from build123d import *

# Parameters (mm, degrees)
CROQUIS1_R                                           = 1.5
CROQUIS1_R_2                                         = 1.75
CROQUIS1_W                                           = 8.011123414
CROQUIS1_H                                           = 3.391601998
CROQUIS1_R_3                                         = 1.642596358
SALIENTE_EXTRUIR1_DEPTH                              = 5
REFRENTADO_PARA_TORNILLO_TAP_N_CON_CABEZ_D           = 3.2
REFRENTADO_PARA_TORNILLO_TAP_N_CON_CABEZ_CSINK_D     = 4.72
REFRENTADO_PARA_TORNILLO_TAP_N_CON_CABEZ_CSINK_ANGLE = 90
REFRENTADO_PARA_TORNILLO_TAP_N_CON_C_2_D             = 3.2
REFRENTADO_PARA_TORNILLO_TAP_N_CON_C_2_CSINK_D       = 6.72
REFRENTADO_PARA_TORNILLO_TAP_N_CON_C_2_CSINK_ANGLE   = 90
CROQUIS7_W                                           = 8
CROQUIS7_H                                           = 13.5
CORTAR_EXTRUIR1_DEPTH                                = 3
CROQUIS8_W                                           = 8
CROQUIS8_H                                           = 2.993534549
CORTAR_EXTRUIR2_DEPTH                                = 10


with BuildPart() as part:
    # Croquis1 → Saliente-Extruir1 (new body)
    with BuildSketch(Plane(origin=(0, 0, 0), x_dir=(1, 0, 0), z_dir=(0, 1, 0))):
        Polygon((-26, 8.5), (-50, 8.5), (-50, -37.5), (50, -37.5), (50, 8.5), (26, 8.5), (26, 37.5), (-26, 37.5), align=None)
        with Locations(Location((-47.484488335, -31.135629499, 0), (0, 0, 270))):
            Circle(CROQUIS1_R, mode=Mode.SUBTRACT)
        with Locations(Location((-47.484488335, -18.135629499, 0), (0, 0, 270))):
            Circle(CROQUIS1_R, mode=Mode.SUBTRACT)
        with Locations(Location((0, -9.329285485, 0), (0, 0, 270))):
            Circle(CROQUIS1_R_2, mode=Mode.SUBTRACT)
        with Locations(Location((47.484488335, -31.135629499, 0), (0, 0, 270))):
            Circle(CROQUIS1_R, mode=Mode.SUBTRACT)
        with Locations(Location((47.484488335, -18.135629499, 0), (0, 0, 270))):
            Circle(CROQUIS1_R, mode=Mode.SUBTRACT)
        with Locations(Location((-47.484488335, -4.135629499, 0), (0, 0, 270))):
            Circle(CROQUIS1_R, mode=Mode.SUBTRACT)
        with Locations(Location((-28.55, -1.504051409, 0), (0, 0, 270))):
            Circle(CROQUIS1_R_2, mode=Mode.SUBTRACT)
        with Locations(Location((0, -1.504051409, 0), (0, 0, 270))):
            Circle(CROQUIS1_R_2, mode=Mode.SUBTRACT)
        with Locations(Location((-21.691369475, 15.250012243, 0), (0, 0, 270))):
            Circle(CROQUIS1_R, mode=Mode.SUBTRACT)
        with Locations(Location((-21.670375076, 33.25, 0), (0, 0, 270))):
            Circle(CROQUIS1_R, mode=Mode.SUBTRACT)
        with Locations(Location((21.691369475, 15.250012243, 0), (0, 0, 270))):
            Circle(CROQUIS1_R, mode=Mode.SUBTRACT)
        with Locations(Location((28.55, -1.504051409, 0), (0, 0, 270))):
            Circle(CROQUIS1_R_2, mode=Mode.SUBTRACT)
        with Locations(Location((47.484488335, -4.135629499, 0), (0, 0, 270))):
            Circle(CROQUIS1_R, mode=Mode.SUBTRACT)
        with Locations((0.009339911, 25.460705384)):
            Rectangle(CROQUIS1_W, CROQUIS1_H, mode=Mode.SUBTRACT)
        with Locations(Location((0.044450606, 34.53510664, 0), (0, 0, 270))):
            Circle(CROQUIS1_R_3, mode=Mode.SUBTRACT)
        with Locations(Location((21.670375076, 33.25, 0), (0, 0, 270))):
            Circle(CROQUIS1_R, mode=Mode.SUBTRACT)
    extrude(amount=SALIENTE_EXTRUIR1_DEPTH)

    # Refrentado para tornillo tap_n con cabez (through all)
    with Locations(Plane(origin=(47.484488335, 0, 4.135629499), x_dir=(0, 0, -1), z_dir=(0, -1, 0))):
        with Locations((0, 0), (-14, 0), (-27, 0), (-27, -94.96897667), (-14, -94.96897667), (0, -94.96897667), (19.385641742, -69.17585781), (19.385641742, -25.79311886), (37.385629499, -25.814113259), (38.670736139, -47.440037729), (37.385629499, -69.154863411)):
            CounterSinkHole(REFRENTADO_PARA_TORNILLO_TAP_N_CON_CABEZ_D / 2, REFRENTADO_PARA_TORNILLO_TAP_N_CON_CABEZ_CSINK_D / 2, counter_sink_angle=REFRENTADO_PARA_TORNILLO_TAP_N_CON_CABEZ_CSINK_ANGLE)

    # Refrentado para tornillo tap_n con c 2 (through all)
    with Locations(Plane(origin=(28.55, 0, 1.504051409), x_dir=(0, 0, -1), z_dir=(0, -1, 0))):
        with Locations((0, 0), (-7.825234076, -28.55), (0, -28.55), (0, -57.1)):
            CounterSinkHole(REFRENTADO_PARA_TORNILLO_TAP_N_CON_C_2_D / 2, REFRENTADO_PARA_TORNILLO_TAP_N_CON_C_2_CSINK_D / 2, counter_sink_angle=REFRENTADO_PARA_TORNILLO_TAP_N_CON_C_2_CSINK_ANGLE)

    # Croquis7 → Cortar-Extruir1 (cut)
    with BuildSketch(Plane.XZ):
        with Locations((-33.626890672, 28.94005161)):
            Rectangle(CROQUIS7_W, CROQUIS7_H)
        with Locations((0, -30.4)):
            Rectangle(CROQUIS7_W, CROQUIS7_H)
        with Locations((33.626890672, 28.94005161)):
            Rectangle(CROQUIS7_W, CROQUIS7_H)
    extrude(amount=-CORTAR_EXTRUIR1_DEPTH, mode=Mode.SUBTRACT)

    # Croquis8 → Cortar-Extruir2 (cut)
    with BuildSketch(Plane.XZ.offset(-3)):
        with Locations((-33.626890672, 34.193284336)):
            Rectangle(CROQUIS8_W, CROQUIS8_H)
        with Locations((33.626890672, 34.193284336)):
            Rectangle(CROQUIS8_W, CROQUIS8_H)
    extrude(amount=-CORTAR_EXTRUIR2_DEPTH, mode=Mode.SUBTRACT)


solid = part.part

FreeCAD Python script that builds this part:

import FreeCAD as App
import Part
import Sketcher

V = App.Vector


def add_polygon(sketch, points):
    """Adds a closed chain of lines whose ends are joined by coincident constraints."""
    first, n = sketch.GeometryCount, len(points)
    for a, b in zip(points, points[1:] + points[:1]):
        sketch.addGeometry(Part.LineSegment(App.Vector(*a, 0), App.Vector(*b, 0)), False)
    for i in range(n):
        sketch.addConstraint(Sketcher.Constraint("Coincident", first + i, 2, first + (i + 1) % n, 1))

doc = App.newDocument("Part")
body = doc.addObject("PartDesign::Body", "Body")

sketch1 = body.newObject("Sketcher::SketchObject", "Sketch")
sketch1.AttachmentSupport = (doc.getObject("XZ_Plane"), [""])
sketch1.MapMode = "FlatFace"
add_polygon(sketch1, [(-26, -8.5), (-50, -8.5), (-50, 37.5), (50, 37.5), (50, -8.5), (26, -8.5), (26, -37.5), (-26, -37.5)])
sketch1.addGeometry(Part.Circle(V(-47.484488, 31.135629, 0), V(0, 0, 1), 1.5), False)
sketch1.addGeometry(Part.Circle(V(-47.484488, 18.135629, 0), V(0, 0, 1), 1.5), False)
sketch1.addGeometry(Part.Circle(V(-47.484488, 4.135629, 0), V(0, 0, 1), 1.5), False)
sketch1.addGeometry(Part.Circle(V(-28.55, 1.504051, 0), V(0, 0, 1), 1.75), False)
sketch1.addGeometry(Part.Circle(V(47.484488, 31.135629, 0), V(0, 0, 1), 1.5), False)
sketch1.addGeometry(Part.Circle(V(47.484488, 18.135629, 0), V(0, 0, 1), 1.5), False)
sketch1.addGeometry(Part.Circle(V(0, 9.329285, 0), V(0, 0, 1), 1.75), False)
sketch1.addGeometry(Part.Circle(V(0, 1.504051, 0), V(0, 0, 1), 1.75), False)
sketch1.addGeometry(Part.Circle(V(28.55, 1.504051, 0), V(0, 0, 1), 1.75), False)
sketch1.addGeometry(Part.Circle(V(47.484488, 4.135629, 0), V(0, 0, 1), 1.5), False)
sketch1.addGeometry(Part.Circle(V(-21.691369, -15.250012, 0), V(0, 0, 1), 1.5), False)
sketch1.addGeometry(Part.Circle(V(-21.670375, -33.25, 0), V(0, 0, 1), 1.5), False)
sketch1.addGeometry(Part.Circle(V(21.691369, -15.250012, 0), V(0, 0, 1), 1.5), False)
add_polygon(sketch1, [(4.014902, -23.764904), (-3.996222, -23.764904), (-3.996222, -27.156506), (4.014902, -27.156506)])
sketch1.addGeometry(Part.Circle(V(0.044451, -34.535107, 0), V(0, 0, 1), 1.642596), False)
sketch1.addGeometry(Part.Circle(V(21.670375, -33.25, 0), V(0, 0, 1), 1.5), False)
sketch1.addConstraint(Sketcher.Constraint("Horizontal", 0))
sketch1.addConstraint(Sketcher.Constraint("Vertical", 1))
sketch1.addConstraint(Sketcher.Constraint("Horizontal", 2))
sketch1.addConstraint(Sketcher.Constraint("Vertical", 3))
sketch1.addConstraint(Sketcher.Constraint("Horizontal", 4))
sketch1.addConstraint(Sketcher.Constraint("Vertical", 5))
sketch1.addConstraint(Sketcher.Constraint("Horizontal", 6))
sketch1.addConstraint(Sketcher.Constraint("Vertical", 7))
sketch1.addConstraint(Sketcher.Constraint("Horizontal", 21))
sketch1.addConstraint(Sketcher.Constraint("Vertical", 22))
sketch1.addConstraint(Sketcher.Constraint("Horizontal", 23))
sketch1.addConstraint(Sketcher.Constraint("Vertical", 24))
sketch1.addConstraint(Sketcher.Constraint("Equal", 8, 9))
sketch1.addConstraint(Sketcher.Constraint("Equal", 9, 10))
sketch1.addConstraint(Sketcher.Constraint("Equal", 10, 12))
sketch1.addConstraint(Sketcher.Constraint("Equal", 12, 13))
sketch1.addConstraint(Sketcher.Constraint("Equal", 11, 14))
sketch1.addConstraint(Sketcher.Constraint("Equal", 14, 15))
sketch1.addConstraint(Sketcher.Constraint("Equal", 15, 16))
sketch1.addConstraint(Sketcher.Constraint("Equal", 13, 17))
sketch1.addConstraint(Sketcher.Constraint("Equal", 17, 18))
sketch1.addConstraint(Sketcher.Constraint("Equal", 18, 19))
sketch1.addConstraint(Sketcher.Constraint("Equal", 19, 20))
sketch1.addConstraint(Sketcher.Constraint("Equal", 20, 26))
sketch1.addConstraint(Sketcher.Constraint("Symmetric", 8, 3, 12, 3, -2))
sketch1.addConstraint(Sketcher.Constraint("Symmetric", 9, 3, 13, 3, -2))
sketch1.addConstraint(Sketcher.Constraint("Symmetric", 11, 3, 16, 3, -2))
sketch1.addConstraint(Sketcher.Constraint("Symmetric", 10, 3, 17, 3, -2))
sketch1.addConstraint(Sketcher.Constraint("Symmetric", 18, 3, 20, 3, -2))
sketch1.addConstraint(Sketcher.Constraint("Symmetric", 19, 3, 26, 3, -2))
sketch1.addConstraint(Sketcher.Constraint("Symmetric", 0, 2, 3, 2, -2))
sketch1.addConstraint(Sketcher.Constraint("PointOnObject", 14, 3, -2))
sketch1.addConstraint(Sketcher.Constraint("PointOnObject", 15, 3, -2))
sketch1.addConstraint(Sketcher.Constraint("Horizontal", 11, 3, 15, 3))
sketch1.addConstraint(Sketcher.Constraint("Vertical", 8, 3, 9, 3))
sketch1.addConstraint(Sketcher.Constraint("Vertical", 9, 3, 10, 3))
sketch1.addConstraint(Sketcher.Constraint("Equal", 0, 4))
sketch1.addConstraint(Sketcher.Constraint("Diameter", 8, 3.0))
sketch1.addConstraint(Sketcher.Constraint("Diameter", 11, 3.5))
sketch1.addConstraint(Sketcher.Constraint("DistanceX", 0, 2, 0, 1, 24.0))
sketch1.addConstraint(Sketcher.Constraint("DistanceX", 2, 1, 2, 2, 100.0))
sketch1.addConstraint(Sketcher.Constraint("DistanceY", 1, 1, 1, 2, 46.0))
sketch1.addConstraint(Sketcher.Constraint("DistanceY", 5, 2, 5, 1, 29.0))
sketch1.addConstraint(Sketcher.Constraint("DistanceY", 9, 3, 8, 3, 13.0))
sketch1.addConstraint(Sketcher.Constraint("DistanceY", 10, 3, 9, 3, 14.0))
sketch1.addConstraint(Sketcher.Constraint("DistanceY", 0, 2, -1, 1, 8.5))
sketch1.addConstraint(Sketcher.Constraint("DistanceX", 11, 3, 16, 3, 57.1))
sketch1.addConstraint(Sketcher.Constraint("DistanceY", 19, 3, -1, 1, 33.25))
sketch1.addConstraint(Sketcher.Constraint("Diameter", 25, 3.285193))
sketch1.addConstraint(Sketcher.Constraint("DistanceY", 22, 2, 22, 1, 3.391602))
sketch1.addConstraint(Sketcher.Constraint("DistanceX", -1, 1, 23, 2, 4.014902))
sketch1.addConstraint(Sketcher.Constraint("DistanceY", 25, 3, 22, 2, 7.3786))
sketch1.addConstraint(Sketcher.Constraint("DistanceX", 21, 2, 21, 1, 8.011123))
sketch1.addConstraint(Sketcher.Constraint("DistanceX", 8, 3, -1, 1, 47.484488))
sketch1.addConstraint(Sketcher.Constraint("DistanceY", -1, 1, 8, 3, 31.135629))
sketch1.addConstraint(Sketcher.Constraint("DistanceY", -1, 1, 11, 3, 1.504051))
sketch1.addConstraint(Sketcher.Constraint("DistanceX", 18, 3, -1, 1, 21.691369))
sketch1.addConstraint(Sketcher.Constraint("DistanceX", -1, 1, 25, 3, 0.044451))
sketch1.addConstraint(Sketcher.Constraint("DistanceY", 18, 3, 10, 3, 19.385642))
sketch1.addConstraint(Sketcher.Constraint("DistanceY", 25, 3, 15, 3, 36.039158))
sketch1.addConstraint(Sketcher.Constraint("DistanceX", 19, 3, 26, 3, 43.34075))
sketch1.addConstraint(Sketcher.Constraint("DistanceY", -1, 1, 14, 3, 9.329285))
pad1 = body.newObject("PartDesign::Pad", "Pad")
pad1.Profile = sketch1
pad1.Length = 5
pad1.Reversed = True

sketch2 = body.newObject("Sketcher::SketchObject", "Sketch001")
sketch2.AttachmentSupport = (doc.getObject("XZ_Plane"), [""])
sketch2.MapMode = "FlatFace"
sketch2.addGeometry(Part.Circle(V(47.484488, 4.135629, 0), V(0, 0, 1), 1.6), False)
sketch2.addGeometry(Part.Circle(V(47.484488, 18.135629, 0), V(0, 0, 1), 1.6), False)
sketch2.addGeometry(Part.Circle(V(47.484488, 31.135629, 0), V(0, 0, 1), 1.6), False)
sketch2.addGeometry(Part.Circle(V(-47.484488, 31.135629, 0), V(0, 0, 1), 1.6), False)
sketch2.addGeometry(Part.Circle(V(-47.484488, 18.135629, 0), V(0, 0, 1), 1.6), False)
sketch2.addGeometry(Part.Circle(V(-47.484488, 4.135629, 0), V(0, 0, 1), 1.6), False)
sketch2.addGeometry(Part.Circle(V(-21.691369, -15.250012, 0), V(0, 0, 1), 1.6), False)
sketch2.addGeometry(Part.Circle(V(21.691369, -15.250012, 0), V(0, 0, 1), 1.6), False)
sketch2.addGeometry(Part.Circle(V(21.670375, -33.25, 0), V(0, 0, 1), 1.6), False)
sketch2.addGeometry(Part.Circle(V(0.044451, -34.535107, 0), V(0, 0, 1), 1.6), False)
sketch2.addGeometry(Part.Circle(V(-21.670375, -33.25, 0), V(0, 0, 1), 1.6), False)
sketch2.addConstraint(Sketcher.Constraint("Equal", 0, 1))
sketch2.addConstraint(Sketcher.Constraint("Equal", 1, 2))
sketch2.addConstraint(Sketcher.Constraint("Equal", 2, 3))
sketch2.addConstraint(Sketcher.Constraint("Equal", 3, 4))
sketch2.addConstraint(Sketcher.Constraint("Equal", 4, 5))
sketch2.addConstraint(Sketcher.Constraint("Equal", 5, 6))
sketch2.addConstraint(Sketcher.Constraint("Equal", 6, 7))
sketch2.addConstraint(Sketcher.Constraint("Equal", 7, 8))
sketch2.addConstraint(Sketcher.Constraint("Equal", 8, 9))
sketch2.addConstraint(Sketcher.Constraint("Equal", 9, 10))
sketch2.addConstraint(Sketcher.Constraint("Symmetric", 2, 3, 3, 3, -2))
sketch2.addConstraint(Sketcher.Constraint("Symmetric", 1, 3, 4, 3, -2))
sketch2.addConstraint(Sketcher.Constraint("Symmetric", 0, 3, 5, 3, -2))
sketch2.addConstraint(Sketcher.Constraint("Symmetric", 6, 3, 7, 3, -2))
sketch2.addConstraint(Sketcher.Constraint("Symmetric", 8, 3, 10, 3, -2))
sketch2.addConstraint(Sketcher.Constraint("Vertical", 0, 3, 1, 3))
sketch2.addConstraint(Sketcher.Constraint("Vertical", 1, 3, 2, 3))
sketch2.addConstraint(Sketcher.Constraint("Diameter", 0, 3.2))
sketch2.addConstraint(Sketcher.Constraint("DistanceY", 0, 3, 1, 3, 14.0))
sketch2.addConstraint(Sketcher.Constraint("DistanceY", 1, 3, 2, 3, 13.0))
sketch2.addConstraint(Sketcher.Constraint("DistanceY", 8, 3, -1, 1, 33.25))
sketch2.addConstraint(Sketcher.Constraint("DistanceX", -1, 1, 0, 3, 47.484488))
sketch2.addConstraint(Sketcher.Constraint("DistanceY", -1, 1, 0, 3, 4.135629))
sketch2.addConstraint(Sketcher.Constraint("DistanceX", 6, 3, -1, 1, 21.691369))
sketch2.addConstraint(Sketcher.Constraint("DistanceX", -1, 1, 9, 3, 0.044451))
sketch2.addConstraint(Sketcher.Constraint("DistanceY", 6, 3, 5, 3, 19.385642))
sketch2.addConstraint(Sketcher.Constraint("DistanceX", 10, 3, 8, 3, 43.34075))
sketch2.addConstraint(Sketcher.Constraint("DistanceY", 9, 3, -1, 1, 34.535107))
doc.recompute()
hole = body.newObject("PartDesign::Hole", "Hole")
hole.Profile = sketch2
hole.ThreadType = "None"
hole.Diameter = 3.2
hole.DepthType = "ThroughAll"
hole.HoleCutType = "Countersink"
hole.HoleCutDiameter = 4.72
hole.HoleCutCountersinkAngle = 90

sketch3 = body.newObject("Sketcher::SketchObject", "Sketch002")
sketch3.AttachmentSupport = (doc.getObject("XZ_Plane"), [""])
sketch3.MapMode = "FlatFace"
sketch3.addGeometry(Part.Circle(V(28.55, 1.504051, 0), V(0, 0, 1), 1.6), False)
sketch3.addGeometry(Part.Circle(V(0, 9.329285, 0), V(0, 0, 1), 1.6), False)
sketch3.addGeometry(Part.Circle(V(0, 1.504051, 0), V(0, 0, 1), 1.6), False)
sketch3.addGeometry(Part.Circle(V(-28.55, 1.504051, 0), V(0, 0, 1), 1.6), False)
sketch3.addConstraint(Sketcher.Constraint("Equal", 0, 1))
sketch3.addConstraint(Sketcher.Constraint("Equal", 1, 2))
sketch3.addConstraint(Sketcher.Constraint("Equal", 2, 3))
sketch3.addConstraint(Sketcher.Constraint("Symmetric", 0, 3, 3, 3, -2))
sketch3.addConstraint(Sketcher.Constraint("PointOnObject", 1, 3, -2))
sketch3.addConstraint(Sketcher.Constraint("PointOnObject", 2, 3, -2))
sketch3.addConstraint(Sketcher.Constraint("Horizontal", 0, 3, 2, 3))
sketch3.addConstraint(Sketcher.Constraint("Diameter", 0, 3.2))
sketch3.addConstraint(Sketcher.Constraint("DistanceX", 3, 3, 0, 3, 57.1))
sketch3.addConstraint(Sketcher.Constraint("DistanceY", -1, 1, 0, 3, 1.504051))
sketch3.addConstraint(Sketcher.Constraint("DistanceY", -1, 1, 1, 3, 9.329285))
doc.recompute()
hole2 = body.newObject("PartDesign::Hole", "Hole001")
hole2.Profile = sketch3
hole2.ThreadType = "None"
hole2.Diameter = 3.2
hole2.DepthType = "ThroughAll"
hole2.HoleCutType = "Countersink"
hole2.HoleCutDiameter = 6.72
hole2.HoleCutCountersinkAngle = 90

sketch4 = body.newObject("Sketcher::SketchObject", "Sketch003")
sketch4.AttachmentSupport = (doc.getObject("XZ_Plane"), [""])
sketch4.MapMode = "FlatFace"
add_polygon(sketch4, [(-37.626891, 35.690052), (-37.626891, 22.190052), (-29.626891, 22.190052), (-29.626891, 35.690052)])
add_polygon(sketch4, [(-4, -23.65), (-4, -37.15), (4, -37.15), (4, -23.65)])
add_polygon(sketch4, [(29.626891, 35.690052), (29.626891, 22.190052), (37.626891, 22.190052), (37.626891, 35.690052)])
sketch4.addConstraint(Sketcher.Constraint("Vertical", 0))
sketch4.addConstraint(Sketcher.Constraint("Horizontal", 1))
sketch4.addConstraint(Sketcher.Constraint("Vertical", 2))
sketch4.addConstraint(Sketcher.Constraint("Horizontal", 3))
sketch4.addConstraint(Sketcher.Constraint("Vertical", 4))
sketch4.addConstraint(Sketcher.Constraint("Horizontal", 5))
sketch4.addConstraint(Sketcher.Constraint("Vertical", 6))
sketch4.addConstraint(Sketcher.Constraint("Horizontal", 7))
sketch4.addConstraint(Sketcher.Constraint("Vertical", 8))
sketch4.addConstraint(Sketcher.Constraint("Horizontal", 9))
sketch4.addConstraint(Sketcher.Constraint("Vertical", 10))
sketch4.addConstraint(Sketcher.Constraint("Horizontal", 11))
sketch4.addConstraint(Sketcher.Constraint("Symmetric", 1, 2, 8, 2, -2))
sketch4.addConstraint(Sketcher.Constraint("Symmetric", 3, 2, 10, 2, -2))
sketch4.addConstraint(Sketcher.Constraint("Equal", 3, 5))
sketch4.addConstraint(Sketcher.Constraint("Equal", 2, 4))
sketch4.addConstraint(Sketcher.Constraint("DistanceX", 1, 1, 1, 2, 8.0))
sketch4.addConstraint(Sketcher.Constraint("DistanceY", 0, 2, 0, 1, 13.5))
sketch4.addConstraint(Sketcher.Constraint("DistanceX", 4, 2, -1, 1, 4.0))
sketch4.addConstraint(Sketcher.Constraint("DistanceY", 4, 2, -1, 1, 37.15))
sketch4.addConstraint(Sketcher.Constraint("DistanceX", 0, 2, -1, 1, 37.626891))
sketch4.addConstraint(Sketcher.Constraint("DistanceY", -1, 1, 0, 2, 22.190052))
pocket1 = body.newObject("PartDesign::Pocket", "Pocket")
pocket1.Profile = sketch4
pocket1.Length = 3

sketch5 = body.newObject("Sketcher::SketchObject", "Sketch004")
sketch5.AttachmentSupport = (doc.getObject("XZ_Plane"), [""])
sketch5.MapMode = "FlatFace"
sketch5.AttachmentOffset = App.Placement(V(0, 0, -3), App.Rotation())
add_polygon(sketch5, [(-37.626891, 35.690052), (-37.626891, 32.696517), (-29.626891, 32.696517), (-29.626891, 35.690052)])
add_polygon(sketch5, [(29.626891, 35.690052), (29.626891, 32.696517), (37.626891, 32.696517), (37.626891, 35.690052)])
sketch5.addConstraint(Sketcher.Constraint("Vertical", 0))
sketch5.addConstraint(Sketcher.Constraint("Horizontal", 1))
sketch5.addConstraint(Sketcher.Constraint("Vertical", 2))
sketch5.addConstraint(Sketcher.Constraint("Horizontal", 3))
sketch5.addConstraint(Sketcher.Constraint("Vertical", 4))
sketch5.addConstraint(Sketcher.Constraint("Horizontal", 5))
sketch5.addConstraint(Sketcher.Constraint("Vertical", 6))
sketch5.addConstraint(Sketcher.Constraint("Horizontal", 7))
sketch5.addConstraint(Sketcher.Constraint("Symmetric", 1, 2, 4, 2, -2))
sketch5.addConstraint(Sketcher.Constraint("Symmetric", 3, 2, 6, 2, -2))
sketch5.addConstraint(Sketcher.Constraint("DistanceX", 1, 1, 1, 2, 8.0))
sketch5.addConstraint(Sketcher.Constraint("DistanceY", 0, 2, 0, 1, 2.993535))
sketch5.addConstraint(Sketcher.Constraint("DistanceX", 0, 2, -1, 1, 37.626891))
sketch5.addConstraint(Sketcher.Constraint("DistanceY", -1, 1, 2, 2, 35.690052))
pocket2 = body.newObject("PartDesign::Pocket", "Pocket001")
pocket2.Profile = sketch5
pocket2.Length = 10

doc.recompute()
